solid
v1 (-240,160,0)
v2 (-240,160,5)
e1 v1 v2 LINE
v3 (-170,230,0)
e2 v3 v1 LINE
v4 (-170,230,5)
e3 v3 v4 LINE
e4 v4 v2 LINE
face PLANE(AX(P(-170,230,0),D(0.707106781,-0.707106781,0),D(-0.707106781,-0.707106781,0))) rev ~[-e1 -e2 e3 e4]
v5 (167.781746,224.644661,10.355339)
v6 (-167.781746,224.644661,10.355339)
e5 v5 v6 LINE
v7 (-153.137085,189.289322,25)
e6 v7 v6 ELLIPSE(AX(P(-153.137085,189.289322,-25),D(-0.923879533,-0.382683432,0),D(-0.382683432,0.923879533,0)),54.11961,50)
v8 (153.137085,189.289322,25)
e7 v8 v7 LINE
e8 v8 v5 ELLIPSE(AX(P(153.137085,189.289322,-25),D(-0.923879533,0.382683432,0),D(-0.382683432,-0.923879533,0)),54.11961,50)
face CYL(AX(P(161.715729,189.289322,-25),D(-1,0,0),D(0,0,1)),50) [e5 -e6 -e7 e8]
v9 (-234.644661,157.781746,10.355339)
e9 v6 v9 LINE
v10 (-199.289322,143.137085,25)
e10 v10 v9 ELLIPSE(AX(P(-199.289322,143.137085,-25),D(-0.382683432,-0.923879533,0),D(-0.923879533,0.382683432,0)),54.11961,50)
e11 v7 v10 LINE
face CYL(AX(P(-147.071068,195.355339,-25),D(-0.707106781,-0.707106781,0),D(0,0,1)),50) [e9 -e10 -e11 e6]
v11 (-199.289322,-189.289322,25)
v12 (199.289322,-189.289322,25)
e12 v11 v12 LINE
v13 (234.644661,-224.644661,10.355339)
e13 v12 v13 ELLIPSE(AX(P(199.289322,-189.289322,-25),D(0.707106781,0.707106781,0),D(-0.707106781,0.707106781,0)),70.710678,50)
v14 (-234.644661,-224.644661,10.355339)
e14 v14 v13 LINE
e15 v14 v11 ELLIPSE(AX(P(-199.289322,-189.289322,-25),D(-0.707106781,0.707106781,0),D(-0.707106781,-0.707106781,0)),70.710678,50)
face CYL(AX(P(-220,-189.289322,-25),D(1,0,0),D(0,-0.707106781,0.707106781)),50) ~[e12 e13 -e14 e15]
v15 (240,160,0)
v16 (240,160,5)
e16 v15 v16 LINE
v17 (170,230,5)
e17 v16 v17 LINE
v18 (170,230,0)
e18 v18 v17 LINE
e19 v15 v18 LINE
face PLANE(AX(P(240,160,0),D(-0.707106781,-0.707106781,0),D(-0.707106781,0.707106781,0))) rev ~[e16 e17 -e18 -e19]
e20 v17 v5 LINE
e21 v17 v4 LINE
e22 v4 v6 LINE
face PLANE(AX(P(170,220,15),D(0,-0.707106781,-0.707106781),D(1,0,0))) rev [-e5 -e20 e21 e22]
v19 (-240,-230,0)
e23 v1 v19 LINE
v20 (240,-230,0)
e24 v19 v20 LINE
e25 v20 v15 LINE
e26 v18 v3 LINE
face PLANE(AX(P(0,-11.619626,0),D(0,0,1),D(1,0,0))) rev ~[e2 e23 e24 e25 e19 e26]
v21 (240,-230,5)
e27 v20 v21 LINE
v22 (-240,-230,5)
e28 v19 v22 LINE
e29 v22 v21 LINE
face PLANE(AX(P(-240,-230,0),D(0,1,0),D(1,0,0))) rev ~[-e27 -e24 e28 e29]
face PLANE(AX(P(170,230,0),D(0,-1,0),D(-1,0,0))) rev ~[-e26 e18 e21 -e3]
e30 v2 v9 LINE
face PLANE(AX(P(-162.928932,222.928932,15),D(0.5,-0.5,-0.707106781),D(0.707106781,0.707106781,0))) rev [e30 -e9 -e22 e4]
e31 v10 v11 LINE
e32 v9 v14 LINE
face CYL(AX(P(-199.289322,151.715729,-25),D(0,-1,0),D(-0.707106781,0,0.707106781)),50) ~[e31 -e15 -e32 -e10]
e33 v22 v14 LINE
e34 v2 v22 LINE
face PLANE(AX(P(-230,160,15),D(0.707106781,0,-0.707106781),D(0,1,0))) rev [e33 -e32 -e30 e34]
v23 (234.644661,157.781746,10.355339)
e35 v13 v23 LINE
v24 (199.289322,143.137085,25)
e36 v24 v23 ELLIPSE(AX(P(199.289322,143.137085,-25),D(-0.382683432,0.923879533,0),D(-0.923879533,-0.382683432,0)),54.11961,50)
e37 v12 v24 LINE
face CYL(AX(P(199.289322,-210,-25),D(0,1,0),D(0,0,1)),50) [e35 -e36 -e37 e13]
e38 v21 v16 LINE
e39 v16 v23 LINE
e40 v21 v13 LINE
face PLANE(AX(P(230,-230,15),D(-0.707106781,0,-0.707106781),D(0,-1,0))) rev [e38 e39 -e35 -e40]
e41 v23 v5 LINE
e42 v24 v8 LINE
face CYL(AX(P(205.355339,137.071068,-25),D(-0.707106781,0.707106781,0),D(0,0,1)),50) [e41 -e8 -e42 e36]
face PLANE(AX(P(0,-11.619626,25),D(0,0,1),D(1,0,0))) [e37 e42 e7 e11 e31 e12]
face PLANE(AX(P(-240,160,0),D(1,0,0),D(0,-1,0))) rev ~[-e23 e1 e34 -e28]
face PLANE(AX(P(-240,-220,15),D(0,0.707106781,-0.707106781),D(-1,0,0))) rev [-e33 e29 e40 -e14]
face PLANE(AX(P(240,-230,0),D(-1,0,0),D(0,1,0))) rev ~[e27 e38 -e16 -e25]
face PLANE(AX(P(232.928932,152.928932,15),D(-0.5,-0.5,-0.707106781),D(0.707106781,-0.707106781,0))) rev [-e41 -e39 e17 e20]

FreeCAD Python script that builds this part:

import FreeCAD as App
import Part
import Sketcher


def edges_at(feature, points):
    """Names of the edges that pass closest to the given points."""
    edges = feature.Shape.Edges
    near = lambda p: min(range(len(edges)), key=lambda i: edges[i].distToShape(Part.Vertex(*p))[0])
    return sorted({f"Edge{near(p) + 1}" for p in points})

doc = App.newDocument("Part")
params = doc.addObject("Spreadsheet::Sheet", "Params")
for row, (alias, value) in enumerate([
    ("sketch1_width", "480 mm"),
    ("sketch1_width2", "340 mm"),
    ("sketch1_height", "390 mm"),
    ("pad1_length", "25 mm"),
    ("chamfer_size", "20 mm"),
    ("fillet_radius", "50 mm"),
], start=1):
    params.set(f"A{row}", alias)
    params.set(f"B{row}", "=" + value)
    params.setAlias(f"B{row}", alias)

body = doc.addObject("PartDesign::Body", "Body")

# Sketch on XY plane
sketch1 = body.newObject("Sketcher::SketchObject", "Sketch")
sketch1.AttachmentSupport = (doc.getObject("XY_Plane"), [""])
sketch1.MapMode = "FlatFace"
sketch1.addGeometry(Part.LineSegment(App.Vector(-240, -230, 0), App.Vector(240, -230, 0)), False)
sketch1.addGeometry(Part.LineSegment(App.Vector(240, -230, 0), App.Vector(240, 160, 0)), False)
sketch1.addGeometry(Part.LineSegment(App.Vector(240, 160, 0), App.Vector(170, 230, 0)), False)
sketch1.addGeometry(Part.LineSegment(App.Vector(170, 230, 0), App.Vector(-170, 230, 0)), False)
sketch1.addGeometry(Part.LineSegment(App.Vector(-170, 230, 0), App.Vector(-240, 160, 0)), False)
sketch1.addGeometry(Part.LineSegment(App.Vector(-240, 160, 0), App.Vector(-240, -230, 0)), False)
sketch1.addConstraint(Sketcher.Constraint("Coincident", 0, 2, 1, 1))
sketch1.addConstraint(Sketcher.Constraint("Coincident", 1, 2, 2, 1))
sketch1.addConstraint(Sketcher.Constraint("Coincident", 2, 2, 3, 1))
sketch1.addConstraint(Sketcher.Constraint("Coincident", 3, 2, 4, 1))
sketch1.addConstraint(Sketcher.Constraint("Coincident", 4, 2, 5, 1))
sketch1.addConstraint(Sketcher.Constraint("Coincident", 5, 2, 0, 1))
sketch1.addConstraint(Sketcher.Constraint("Horizontal", 0))
sketch1.addConstraint(Sketcher.Constraint("Vertical", 1))
sketch1.addConstraint(Sketcher.Constraint("Horizontal", 3))
sketch1.addConstraint(Sketcher.Constraint("Vertical", 5))
sketch1.addConstraint(Sketcher.Constraint("Symmetric", 1, 2, 4, 2, -2))
sketch1.addConstraint(Sketcher.Constraint("Perpendicular", 2, 4))
sketch1.addConstraint(Sketcher.Constraint("Equal", 2, 4))
sketch1.addConstraint(Sketcher.Constraint("DistanceX", 0, 1, 0, 2, 480.0))
sketch1.addConstraint(Sketcher.Constraint("DistanceX", 3, 2, 3, 1, 340.0))
sketch1.addConstraint(Sketcher.Constraint("DistanceY", 1, 1, 1, 2, 390.0))
sketch1.addConstraint(Sketcher.Constraint("DistanceY", 0, 2, -1, 1, 230.0))
sketch1.setExpression("Constraints[13]", "Params.sketch1_width")
sketch1.setExpression("Constraints[14]", "Params.sketch1_width2")
sketch1.setExpression("Constraints[15]", "Params.sketch1_height")
pad1 = body.newObject("PartDesign::Pad", "Pad")
pad1.Profile = sketch1
pad1.setExpression("Length", "Params.pad1_length")
doc.recompute()

chamfer = body.newObject("PartDesign::Chamfer", "Chamfer")
chamfer.Base = (pad1, edges_at(pad1, [
    (205, 195, 25),
    (-205, 195, 25),
    (0, 230, 25),
    (240, -35, 25),
    (-240, -35, 25),
    (0, -230, 25),
]))
chamfer.setExpression("Size", "Params.chamfer_size")
doc.recompute()

fillet = body.newObject("PartDesign::Fillet", "Fillet")
fillet.Base = (chamfer, edges_at(chamfer, [
    (0, 210, 25),
    (190.858, 180.858, 25),
    (220, -29.142, 25),
    (-190.858, 180.858, 25),
    (-220, -29.142, 25),
    (0, -210, 25),
]))
fillet.setExpression("Radius", "Params.fillet_radius")

doc.recompute()
